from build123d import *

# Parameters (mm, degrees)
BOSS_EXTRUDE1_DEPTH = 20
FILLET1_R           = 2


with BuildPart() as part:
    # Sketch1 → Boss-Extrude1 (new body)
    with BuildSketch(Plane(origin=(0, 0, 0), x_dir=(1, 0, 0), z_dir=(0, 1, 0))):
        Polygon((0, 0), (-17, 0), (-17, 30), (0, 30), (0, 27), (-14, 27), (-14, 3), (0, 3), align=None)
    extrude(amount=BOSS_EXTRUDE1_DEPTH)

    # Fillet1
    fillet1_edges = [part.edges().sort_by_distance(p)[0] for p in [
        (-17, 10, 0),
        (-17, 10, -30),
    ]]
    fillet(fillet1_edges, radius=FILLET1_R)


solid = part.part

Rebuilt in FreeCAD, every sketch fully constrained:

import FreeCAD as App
import Part
import Sketcher
Q = App.Units.Quantity


def edges_at(feature, points):
    """Names of the edges that pass closest to the given points."""
    edges = feature.Shape.Edges
    near = lambda p: min(range(len(edges)), key=lambda i: edges[i].distToShape(Part.Vertex(*p))[0])
    return sorted({f"Edge{near(p) + 1}" for p in points})

doc = App.newDocument("Part")
body = doc.addObject("PartDesign::Body", "Body")

# Sketch on XZ plane
sketch1 = body.newObject("Sketcher::SketchObject", "Sketch")
sketch1.AttachmentSupport = (doc.getObject("XZ_Plane"), [""])
sketch1.MapMode = "FlatFace"
sketch1.addGeometry(Part.LineSegment(App.Vector(-17, 0, 0), App.Vector(0, 0, 0)), False)
sketch1.addGeometry(Part.LineSegment(App.Vector(0, 0, 0), App.Vector(0, -3, 0)), False)
sketch1.addGeometry(Part.LineSegment(App.Vector(0, -3, 0), App.Vector(-14, -3, 0)), False)
sketch1.addGeometry(Part.LineSegment(App.Vector(-14, -3, 0), App.Vector(-14, -27, 0)), False)
sketch1.addGeometry(Part.LineSegment(App.Vector(-14, -27, 0), App.Vector(0, -27, 0)), False)
sketch1.addGeometry(Part.LineSegment(App.Vector(0, -27, 0), App.Vector(0, -30, 0)), False)
sketch1.addGeometry(Part.LineSegment(App.Vector(0, -30, 0), App.Vector(-17, -30, 0)), False)
sketch1.addGeometry(Part.LineSegment(App.Vector(-17, -30, 0), App.Vector(-17, 0, 0)), False)
sketch1.addConstraint(Sketcher.Constraint("Coincident", 0, 2, 1, 1))
sketch1.addConstraint(Sketcher.Constraint("Coincident", 1, 2, 2, 1))
sketch1.addConstraint(Sketcher.Constraint("Coincident", 2, 2, 3, 1))
sketch1.addConstraint(Sketcher.Constraint("Coincident", 3, 2, 4, 1))
sketch1.addConstraint(Sketcher.Constraint("Coincident", 4, 2, 5, 1))
sketch1.addConstraint(Sketcher.Constraint("Coincident", 5, 2, 6, 1))
sketch1.addConstraint(Sketcher.Constraint("Coincident", 6, 2, 7, 1))
sketch1.addConstraint(Sketcher.Constraint("Coincident", 7, 2, 0, 1))
sketch1.addConstraint(Sketcher.Constraint("Horizontal", 0))
sketch1.addConstraint(Sketcher.Constraint("Vertical", 1))
sketch1.addConstraint(Sketcher.Constraint("Horizontal", 2))
sketch1.addConstraint(Sketcher.Constraint("Vertical", 3))
sketch1.addConstraint(Sketcher.Constraint("Horizontal", 4))
sketch1.addConstraint(Sketcher.Constraint("Vertical", 5))
sketch1.addConstraint(Sketcher.Constraint("Horizontal", 6))
sketch1.addConstraint(Sketcher.Constraint("Vertical", 7))
sketch1.addConstraint(Sketcher.Constraint("Coincident", 0, 2, -1, 1))
sketch1.addConstraint(Sketcher.Constraint("PointOnObject", 4, 2, -2))
sketch1.addConstraint(Sketcher.Constraint("Equal", 1, 5))
sketch1.addConstraint(Sketcher.Constraint("DistanceX", 0, 1, 0, 2, Q("17 mm")))
sketch1.addConstraint(Sketcher.Constraint("DistanceX", 2, 2, 2, 1, Q("14 mm")))
sketch1.addConstraint(Sketcher.Constraint("DistanceY", 1, 2, 1, 1, Q("3 mm")))
sketch1.addConstraint(Sketcher.Constraint("DistanceY", 3, 2, 3, 1, Q("24 mm")))
pad1 = body.newObject("PartDesign::Pad", "Pad")
pad1.Profile = sketch1
pad1.Length = 20
pad1.Reversed = True
doc.recompute()

fillet = body.newObject("PartDesign::Fillet", "Fillet")
fillet.Base = (pad1, edges_at(pad1, [(-17, 10, 0), (-17, 10, -30)]))
fillet.Radius = 2

doc.recompute()
